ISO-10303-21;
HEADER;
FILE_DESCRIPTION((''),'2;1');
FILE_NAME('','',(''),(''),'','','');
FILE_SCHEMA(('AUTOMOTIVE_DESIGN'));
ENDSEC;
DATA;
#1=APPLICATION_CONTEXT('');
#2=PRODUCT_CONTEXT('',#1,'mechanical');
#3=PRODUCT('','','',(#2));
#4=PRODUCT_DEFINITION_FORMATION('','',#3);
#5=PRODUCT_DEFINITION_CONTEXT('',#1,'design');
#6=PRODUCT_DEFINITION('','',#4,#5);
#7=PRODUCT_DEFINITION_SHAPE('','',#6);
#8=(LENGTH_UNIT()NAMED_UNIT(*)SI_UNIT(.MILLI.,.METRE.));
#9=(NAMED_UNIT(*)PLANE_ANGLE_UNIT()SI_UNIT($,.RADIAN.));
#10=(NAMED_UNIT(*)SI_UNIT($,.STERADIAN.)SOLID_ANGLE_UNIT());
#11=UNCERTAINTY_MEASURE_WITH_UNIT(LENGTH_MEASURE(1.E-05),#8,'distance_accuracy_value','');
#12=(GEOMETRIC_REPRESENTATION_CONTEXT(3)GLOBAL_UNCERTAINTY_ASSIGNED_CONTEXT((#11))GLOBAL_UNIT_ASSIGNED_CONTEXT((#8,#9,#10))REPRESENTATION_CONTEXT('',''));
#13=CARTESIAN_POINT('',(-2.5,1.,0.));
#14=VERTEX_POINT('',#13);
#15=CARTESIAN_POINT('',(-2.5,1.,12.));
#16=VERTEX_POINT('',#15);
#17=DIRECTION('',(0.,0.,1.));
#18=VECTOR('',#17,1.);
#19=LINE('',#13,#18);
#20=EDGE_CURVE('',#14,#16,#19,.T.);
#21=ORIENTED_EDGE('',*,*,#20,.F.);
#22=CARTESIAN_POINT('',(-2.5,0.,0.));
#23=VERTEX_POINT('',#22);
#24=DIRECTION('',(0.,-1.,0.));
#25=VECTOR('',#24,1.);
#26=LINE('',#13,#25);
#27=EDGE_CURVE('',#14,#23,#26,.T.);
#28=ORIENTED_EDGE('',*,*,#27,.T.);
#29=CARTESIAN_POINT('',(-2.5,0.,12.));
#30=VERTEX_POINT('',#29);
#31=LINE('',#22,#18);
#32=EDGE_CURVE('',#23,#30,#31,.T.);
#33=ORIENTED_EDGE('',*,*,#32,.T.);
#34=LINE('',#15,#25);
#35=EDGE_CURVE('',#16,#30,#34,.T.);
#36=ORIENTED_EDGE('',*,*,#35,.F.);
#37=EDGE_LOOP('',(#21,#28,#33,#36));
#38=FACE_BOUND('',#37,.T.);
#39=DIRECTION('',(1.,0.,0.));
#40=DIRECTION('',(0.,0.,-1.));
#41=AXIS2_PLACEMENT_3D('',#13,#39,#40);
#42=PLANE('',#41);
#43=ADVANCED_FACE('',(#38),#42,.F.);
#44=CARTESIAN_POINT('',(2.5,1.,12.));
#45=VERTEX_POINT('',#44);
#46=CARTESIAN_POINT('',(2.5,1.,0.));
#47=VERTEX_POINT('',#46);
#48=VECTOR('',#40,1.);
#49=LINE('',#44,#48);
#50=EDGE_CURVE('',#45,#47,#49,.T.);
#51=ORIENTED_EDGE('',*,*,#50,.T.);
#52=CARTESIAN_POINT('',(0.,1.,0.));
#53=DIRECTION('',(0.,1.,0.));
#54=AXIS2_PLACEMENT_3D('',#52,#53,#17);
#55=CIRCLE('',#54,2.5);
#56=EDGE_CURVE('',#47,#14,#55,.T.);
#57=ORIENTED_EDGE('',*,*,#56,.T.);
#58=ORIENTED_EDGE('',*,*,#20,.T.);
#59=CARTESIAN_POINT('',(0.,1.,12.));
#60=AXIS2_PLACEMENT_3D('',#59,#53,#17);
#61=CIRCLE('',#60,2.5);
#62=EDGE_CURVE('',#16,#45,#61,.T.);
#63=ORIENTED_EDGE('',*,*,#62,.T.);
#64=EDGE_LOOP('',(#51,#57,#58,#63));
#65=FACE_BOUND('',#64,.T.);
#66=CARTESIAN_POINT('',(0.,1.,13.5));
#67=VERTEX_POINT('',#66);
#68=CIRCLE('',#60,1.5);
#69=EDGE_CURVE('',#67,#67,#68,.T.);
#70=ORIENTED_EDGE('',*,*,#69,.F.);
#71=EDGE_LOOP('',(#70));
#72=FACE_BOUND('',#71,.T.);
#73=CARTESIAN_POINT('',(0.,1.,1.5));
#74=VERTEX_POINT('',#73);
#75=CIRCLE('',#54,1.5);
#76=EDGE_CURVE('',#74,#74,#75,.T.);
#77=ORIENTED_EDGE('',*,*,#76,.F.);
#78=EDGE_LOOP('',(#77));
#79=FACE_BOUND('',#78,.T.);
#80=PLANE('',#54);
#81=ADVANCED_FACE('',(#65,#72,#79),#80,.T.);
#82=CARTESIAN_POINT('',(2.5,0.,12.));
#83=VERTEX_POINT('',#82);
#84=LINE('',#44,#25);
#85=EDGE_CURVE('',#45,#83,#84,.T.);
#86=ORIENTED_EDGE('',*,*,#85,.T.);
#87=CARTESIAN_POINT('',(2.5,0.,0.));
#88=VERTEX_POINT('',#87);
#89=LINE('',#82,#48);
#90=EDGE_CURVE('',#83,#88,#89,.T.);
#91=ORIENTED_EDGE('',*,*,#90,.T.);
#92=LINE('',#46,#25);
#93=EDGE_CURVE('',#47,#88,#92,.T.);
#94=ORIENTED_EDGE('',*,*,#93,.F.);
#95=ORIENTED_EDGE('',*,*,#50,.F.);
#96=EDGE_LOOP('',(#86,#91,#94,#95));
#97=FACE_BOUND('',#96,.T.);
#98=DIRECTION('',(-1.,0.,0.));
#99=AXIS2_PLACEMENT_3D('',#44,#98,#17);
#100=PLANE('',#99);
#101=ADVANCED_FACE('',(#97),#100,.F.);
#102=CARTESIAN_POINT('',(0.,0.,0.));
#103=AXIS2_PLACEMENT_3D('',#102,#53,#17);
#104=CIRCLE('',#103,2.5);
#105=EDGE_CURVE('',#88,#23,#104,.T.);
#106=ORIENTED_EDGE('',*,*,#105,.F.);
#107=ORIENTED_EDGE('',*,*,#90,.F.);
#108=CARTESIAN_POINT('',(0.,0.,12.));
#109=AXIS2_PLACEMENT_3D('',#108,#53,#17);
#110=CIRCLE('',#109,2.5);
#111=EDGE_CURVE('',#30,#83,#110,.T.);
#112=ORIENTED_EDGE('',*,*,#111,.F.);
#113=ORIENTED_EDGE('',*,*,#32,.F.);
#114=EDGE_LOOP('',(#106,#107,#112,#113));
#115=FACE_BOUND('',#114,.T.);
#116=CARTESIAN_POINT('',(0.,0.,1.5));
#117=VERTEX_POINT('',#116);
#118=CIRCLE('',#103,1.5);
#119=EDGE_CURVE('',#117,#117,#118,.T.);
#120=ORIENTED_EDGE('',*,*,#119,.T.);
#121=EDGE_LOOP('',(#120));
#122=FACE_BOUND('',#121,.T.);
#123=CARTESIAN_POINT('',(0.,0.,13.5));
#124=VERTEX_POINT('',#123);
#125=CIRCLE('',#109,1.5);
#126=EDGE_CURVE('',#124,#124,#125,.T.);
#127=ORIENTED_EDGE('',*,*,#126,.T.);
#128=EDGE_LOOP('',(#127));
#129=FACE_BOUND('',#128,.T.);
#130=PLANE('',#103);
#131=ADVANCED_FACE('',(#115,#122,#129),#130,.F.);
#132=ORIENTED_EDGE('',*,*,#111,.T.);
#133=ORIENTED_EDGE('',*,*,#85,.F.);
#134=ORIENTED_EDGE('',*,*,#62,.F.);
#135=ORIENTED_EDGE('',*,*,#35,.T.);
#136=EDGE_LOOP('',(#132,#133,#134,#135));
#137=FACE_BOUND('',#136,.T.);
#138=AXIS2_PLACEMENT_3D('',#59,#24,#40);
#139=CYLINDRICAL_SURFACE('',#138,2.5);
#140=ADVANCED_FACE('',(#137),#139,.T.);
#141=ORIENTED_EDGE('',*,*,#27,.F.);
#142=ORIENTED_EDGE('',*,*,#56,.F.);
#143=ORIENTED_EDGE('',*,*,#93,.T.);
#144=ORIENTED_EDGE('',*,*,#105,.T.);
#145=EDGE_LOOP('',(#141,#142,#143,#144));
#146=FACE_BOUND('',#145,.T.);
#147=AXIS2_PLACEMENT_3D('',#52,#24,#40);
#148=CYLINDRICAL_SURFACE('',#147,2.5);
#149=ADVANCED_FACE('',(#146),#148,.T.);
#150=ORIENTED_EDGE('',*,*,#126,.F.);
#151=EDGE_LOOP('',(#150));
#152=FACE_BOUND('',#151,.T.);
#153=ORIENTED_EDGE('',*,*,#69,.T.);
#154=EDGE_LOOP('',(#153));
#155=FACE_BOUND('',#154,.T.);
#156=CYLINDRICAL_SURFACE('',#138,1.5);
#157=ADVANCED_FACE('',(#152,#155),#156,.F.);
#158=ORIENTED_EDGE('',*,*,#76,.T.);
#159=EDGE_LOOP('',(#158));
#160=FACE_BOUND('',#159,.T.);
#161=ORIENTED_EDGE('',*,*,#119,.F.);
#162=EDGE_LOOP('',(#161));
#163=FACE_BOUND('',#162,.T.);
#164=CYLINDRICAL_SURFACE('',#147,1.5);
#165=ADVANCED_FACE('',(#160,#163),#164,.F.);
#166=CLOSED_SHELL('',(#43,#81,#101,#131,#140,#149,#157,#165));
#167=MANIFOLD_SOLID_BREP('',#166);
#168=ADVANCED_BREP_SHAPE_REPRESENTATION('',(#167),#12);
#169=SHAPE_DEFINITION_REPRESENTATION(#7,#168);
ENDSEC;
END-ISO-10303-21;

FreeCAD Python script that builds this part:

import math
import FreeCAD as App
import Part
import Sketcher

doc = App.newDocument("Part")
body = doc.addObject("PartDesign::Body", "Body")

# Sketch on XZ plane
sketch1 = body.newObject("Sketcher::SketchObject", "Sketch")
sketch1.AttachmentSupport = (doc.getObject("XZ_Plane"), [""])
sketch1.MapMode = "FlatFace"
sketch1.addGeometry([
    Part.LineSegment(App.Vector(-2.5, 0, 0), App.Vector(-2.5, 12, 0)),  # 0
    Part.ArcOfCircle(Part.Circle(App.Vector(0, 12, 0), App.Vector(0, 0, 1), 2.5), math.radians(0), math.radians(180)),  # 1
    Part.LineSegment(App.Vector(2.5, 12, 0), App.Vector(2.5, 0, 0)),  # 2
    Part.ArcOfCircle(Part.Circle(App.Vector(0, 0, 0), App.Vector(0, 0, 1), 2.5), math.radians(180), math.radians(360)),  # 3
    Part.Circle(App.Vector(0, 12, 0), App.Vector(0, 0, 1), 1.5),  # 4
    Part.Circle(App.Vector(0, 0, 0), App.Vector(0, 0, 1), 1.5),  # 5
], False)
sketch1.addConstraint([
    Sketcher.Constraint("Tangent", 0, 2, 1, 2),
    Sketcher.Constraint("Tangent", 1, 1, 2, 1),
    Sketcher.Constraint("Tangent", 2, 2, 3, 2),
    Sketcher.Constraint("Tangent", 3, 1, 0, 1),
    Sketcher.Constraint("Vertical", 0),
    Sketcher.Constraint("Vertical", 2),
    Sketcher.Constraint("Coincident", 3, 3, -1, 1),
    Sketcher.Constraint("Coincident", 5, 3, -1, 1),
    Sketcher.Constraint("Coincident", 4, 3, 1, 3),
    Sketcher.Constraint("Equal", 4, 5),
    Sketcher.Constraint("Diameter", 4, 3.0),
    Sketcher.Constraint("Radius", 1, 2.5),
    Sketcher.Constraint("DistanceY", 0, 1, 0, 2, 12.0),
])
pad1 = body.newObject("PartDesign::Pad", "Pad")
pad1.Profile = sketch1
pad1.Length = 1
pad1.Reversed = True

doc.recompute()
